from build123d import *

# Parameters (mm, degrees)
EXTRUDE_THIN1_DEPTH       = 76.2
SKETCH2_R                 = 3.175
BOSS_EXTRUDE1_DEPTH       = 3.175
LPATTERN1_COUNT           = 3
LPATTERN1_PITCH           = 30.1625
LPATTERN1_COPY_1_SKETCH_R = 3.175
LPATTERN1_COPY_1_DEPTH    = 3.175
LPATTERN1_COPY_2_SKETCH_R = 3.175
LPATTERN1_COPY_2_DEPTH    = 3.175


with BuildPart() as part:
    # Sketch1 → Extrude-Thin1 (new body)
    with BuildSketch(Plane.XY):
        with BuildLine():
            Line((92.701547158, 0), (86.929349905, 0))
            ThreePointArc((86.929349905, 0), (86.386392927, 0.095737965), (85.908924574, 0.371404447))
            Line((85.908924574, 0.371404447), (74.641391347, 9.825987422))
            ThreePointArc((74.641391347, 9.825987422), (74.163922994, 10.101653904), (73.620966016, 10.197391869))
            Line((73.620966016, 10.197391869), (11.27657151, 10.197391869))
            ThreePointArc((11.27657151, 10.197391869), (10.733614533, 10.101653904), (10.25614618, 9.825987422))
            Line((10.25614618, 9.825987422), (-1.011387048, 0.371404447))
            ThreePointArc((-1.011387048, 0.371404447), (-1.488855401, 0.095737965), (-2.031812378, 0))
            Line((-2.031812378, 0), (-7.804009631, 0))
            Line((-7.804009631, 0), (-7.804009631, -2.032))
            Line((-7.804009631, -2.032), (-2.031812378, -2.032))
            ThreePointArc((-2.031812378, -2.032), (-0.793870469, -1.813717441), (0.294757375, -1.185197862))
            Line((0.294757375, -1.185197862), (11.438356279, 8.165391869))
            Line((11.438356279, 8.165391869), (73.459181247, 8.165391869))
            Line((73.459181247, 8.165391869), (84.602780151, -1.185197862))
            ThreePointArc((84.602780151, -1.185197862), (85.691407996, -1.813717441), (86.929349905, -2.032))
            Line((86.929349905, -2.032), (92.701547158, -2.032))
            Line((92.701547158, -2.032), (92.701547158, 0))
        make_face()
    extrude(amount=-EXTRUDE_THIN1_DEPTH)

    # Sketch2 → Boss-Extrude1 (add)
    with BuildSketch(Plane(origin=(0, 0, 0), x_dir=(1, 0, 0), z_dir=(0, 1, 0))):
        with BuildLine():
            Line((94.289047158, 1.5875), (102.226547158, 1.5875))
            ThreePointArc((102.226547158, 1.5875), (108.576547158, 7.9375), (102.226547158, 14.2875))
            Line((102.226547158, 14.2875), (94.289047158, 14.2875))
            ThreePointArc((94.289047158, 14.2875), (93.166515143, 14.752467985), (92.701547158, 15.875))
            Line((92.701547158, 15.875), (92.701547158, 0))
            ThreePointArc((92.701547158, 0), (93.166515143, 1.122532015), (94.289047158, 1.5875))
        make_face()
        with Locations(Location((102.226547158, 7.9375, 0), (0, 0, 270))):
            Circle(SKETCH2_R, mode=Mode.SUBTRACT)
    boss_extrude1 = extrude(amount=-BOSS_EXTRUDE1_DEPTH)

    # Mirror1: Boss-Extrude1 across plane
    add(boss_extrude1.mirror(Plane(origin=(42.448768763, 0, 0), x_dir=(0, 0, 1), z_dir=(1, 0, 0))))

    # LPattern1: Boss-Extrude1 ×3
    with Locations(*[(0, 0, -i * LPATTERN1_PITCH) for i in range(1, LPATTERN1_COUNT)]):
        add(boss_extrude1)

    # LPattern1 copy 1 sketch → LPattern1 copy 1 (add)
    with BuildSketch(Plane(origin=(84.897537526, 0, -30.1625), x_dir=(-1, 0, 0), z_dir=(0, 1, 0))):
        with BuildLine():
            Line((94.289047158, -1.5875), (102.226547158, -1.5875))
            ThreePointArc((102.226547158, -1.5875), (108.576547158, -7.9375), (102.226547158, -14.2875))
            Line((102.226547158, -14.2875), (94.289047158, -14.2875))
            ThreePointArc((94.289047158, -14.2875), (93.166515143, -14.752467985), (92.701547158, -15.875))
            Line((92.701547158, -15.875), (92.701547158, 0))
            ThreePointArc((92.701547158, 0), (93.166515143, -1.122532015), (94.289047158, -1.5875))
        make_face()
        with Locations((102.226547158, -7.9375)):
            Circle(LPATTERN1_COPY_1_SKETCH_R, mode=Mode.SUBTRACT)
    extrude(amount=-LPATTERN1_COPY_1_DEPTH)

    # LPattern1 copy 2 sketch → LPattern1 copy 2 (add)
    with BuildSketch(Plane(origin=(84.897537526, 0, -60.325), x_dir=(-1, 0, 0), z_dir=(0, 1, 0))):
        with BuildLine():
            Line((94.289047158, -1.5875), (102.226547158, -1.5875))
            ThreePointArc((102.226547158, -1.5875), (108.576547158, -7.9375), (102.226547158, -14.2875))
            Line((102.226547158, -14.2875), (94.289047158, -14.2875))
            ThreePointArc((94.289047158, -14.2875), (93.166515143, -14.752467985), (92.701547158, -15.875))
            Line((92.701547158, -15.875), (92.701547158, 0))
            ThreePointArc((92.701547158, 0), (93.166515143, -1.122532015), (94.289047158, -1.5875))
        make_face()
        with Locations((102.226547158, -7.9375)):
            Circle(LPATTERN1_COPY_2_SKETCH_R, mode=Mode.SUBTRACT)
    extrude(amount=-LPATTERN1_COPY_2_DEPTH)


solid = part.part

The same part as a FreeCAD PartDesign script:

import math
import FreeCAD as App
import Part
import Sketcher
from FreeCAD import Vector
Q = App.Units.Quantity

doc = App.newDocument("Part")
params = doc.addObject("Spreadsheet::Sheet", "Params")
for row, (alias, value) in enumerate([
    ("sketch1_radius", "0.0625 in"),
    ("sketch1_height", "0.08 in"),
    ("pad1_length", "3 in"),
    ("sketch2_diameter", "0.25 in"),
    ("sketch2_radius", "0.25 in"),
    ("sketch2_radius2", "0.0625 in"),
    ("sketch2_width", "0.3125 in"),
    ("pad2_length", "0.125 in"),
    ("linearpattern_pitch", "1.1875 in"),
    ("sketch3_diameter", "0.25 in"),
    ("sketch3_radius", "0.25 in"),
    ("sketch3_radius2", "0.0625 in"),
    ("sketch3_width", "0.3125 in"),
    ("pad3_length", "0.125 in"),
    ("sketch4_diameter", "0.25 in"),
    ("sketch4_radius", "0.25 in"),
    ("sketch4_radius2", "0.0625 in"),
    ("sketch4_width", "0.3125 in"),
    ("pad4_length", "0.125 in"),
], start=1):
    params.set(f"A{row}", alias)
    params.set(f"B{row}", "=" + value)
    params.setAlias(f"B{row}", alias)

body = doc.addObject("PartDesign::Body", "Body")

sketch1 = doc.addObject("Sketcher::SketchObject", "Sketch")
body.addObject(sketch1)
sketch1.AttachmentSupport = (doc.XY_Plane, [""])
sketch1.MapMode = "FlatFace"
sketch1.addGeometry([
    Part.LineSegment(Vector(92.701547, 0, 0), Vector(86.92935, 0, 0)),
    Part.ArcOfCircle(Part.Circle(Vector(86.92935, 1.5875, 0), Vector(0, 0, 1), 1.5875), math.radians(-130), math.radians(-90)),
    Part.LineSegment(Vector(85.908925, 0.371404, 0), Vector(74.641391, 9.825987, 0)),
    Part.ArcOfCircle(Part.Circle(Vector(73.620966, 8.609892, 0), Vector(0, 0, 1), 1.5875), math.radians(50), math.radians(90)),
    Part.LineSegment(Vector(73.620966, 10.197392, 0), Vector(11.276572, 10.197392, 0)),
    Part.ArcOfCircle(Part.Circle(Vector(11.276572, 8.609892, 0), Vector(0, 0, 1), 1.5875), math.radians(90), math.radians(130)),
    Part.LineSegment(Vector(10.256146, 9.825987, 0), Vector(-1.011387, 0.371404, 0)),
    Part.ArcOfCircle(Part.Circle(Vector(-2.031812, 1.5875, 0), Vector(0, 0, 1), 1.5875), math.radians(-90), math.radians(-50)),
    Part.LineSegment(Vector(-2.031812, 0, 0), Vector(-7.80401, 0, 0)),
    Part.LineSegment(Vector(-7.80401, 0, 0), Vector(-7.80401, -2.032, 0)),
    Part.LineSegment(Vector(-7.80401, -2.032, 0), Vector(-2.031812, -2.032, 0)),
    Part.ArcOfCircle(Part.Circle(Vector(-2.031812, 1.5875, 0), Vector(0, 0, 1), 3.6195), math.radians(-90), math.radians(-50)),
    Part.LineSegment(Vector(0.294757, -1.185198, 0), Vector(11.438356, 8.165392, 0)),
    Part.LineSegment(Vector(11.438356, 8.165392, 0), Vector(73.459181, 8.165392, 0)),
    Part.LineSegment(Vector(73.459181, 8.165392, 0), Vector(84.60278, -1.185198, 0)),
    Part.ArcOfCircle(Part.Circle(Vector(86.92935, 1.5875, 0), Vector(0, 0, 1), 3.6195), math.radians(-130), math.radians(-90)),
    Part.LineSegment(Vector(86.92935, -2.032, 0), Vector(92.701547, -2.032, 0)),
    Part.LineSegment(Vector(92.701547, -2.032, 0), Vector(92.701547, 0, 0)),
], False)
sketch1.addConstraint([
    Sketcher.Constraint("Tangent", 0, 2, 1, 2),
    Sketcher.Constraint("Tangent", 1, 1, 2, 1),
    Sketcher.Constraint("Tangent", 2, 2, 3, 1),
    Sketcher.Constraint("Tangent", 3, 2, 4, 1),
    Sketcher.Constraint("Tangent", 4, 2, 5, 1),
    Sketcher.Constraint("Tangent", 5, 2, 6, 1),
    Sketcher.Constraint("Tangent", 6, 2, 7, 2),
    Sketcher.Constraint("Tangent", 7, 1, 8, 1),
    Sketcher.Constraint("Coincident", 8, 2, 9, 1),
    Sketcher.Constraint("Coincident", 9, 2, 10, 1),
    Sketcher.Constraint("Tangent", 10, 2, 11, 1),
    Sketcher.Constraint("Tangent", 11, 2, 12, 1),
    Sketcher.Constraint("Coincident", 12, 2, 13, 1),
    Sketcher.Constraint("Coincident", 13, 2, 14, 1),
    Sketcher.Constraint("Tangent", 14, 2, 15, 1),
    Sketcher.Constraint("Tangent", 15, 2, 16, 1),
    Sketcher.Constraint("Coincident", 16, 2, 17, 1),
    Sketcher.Constraint("Coincident", 17, 2, 0, 1),
    Sketcher.Constraint("Horizontal", 0),
    Sketcher.Constraint("Horizontal", 4),
    Sketcher.Constraint("Horizontal", 8),
    Sketcher.Constraint("Vertical", 9),
    Sketcher.Constraint("Horizontal", 10),
    Sketcher.Constraint("Horizontal", 13),
    Sketcher.Constraint("Horizontal", 16),
    Sketcher.Constraint("Vertical", 17),
    Sketcher.Constraint("Coincident", 11, 3, 7, 3),
    Sketcher.Constraint("Coincident", 15, 3, 1, 3),
    Sketcher.Constraint("Equal", 1, 3),
    Sketcher.Constraint("Equal", 3, 5),
    Sketcher.Constraint("Equal", 5, 7),
    Sketcher.Constraint("Equal", 11, 15),
    Sketcher.Constraint("PointOnObject", 0, 2, -1),
    Sketcher.Constraint("PointOnObject", 7, 1, -1),
    Sketcher.Constraint("Parallel", 6, 12),
    Sketcher.Constraint("Parallel", 2, 14),
    Sketcher.Constraint("Horizontal", 2, 2, 5, 2),
    Sketcher.Constraint("Equal", 0, 8),
    Sketcher.Constraint("Angle", 2, Q("140 deg")),
    Sketcher.Constraint("Radius", 1, Q("0.0625 in")),
    Sketcher.Constraint("DistanceY", 9, 2, 9, 1, Q("0.08 in")),
    Sketcher.Constraint("DistanceY", 12, 2, 4, 2, Q("0.08 in")),
    Sketcher.Constraint("DistanceX", 11, 2, 12, 2, Q("11.143599 mm")),
    Sketcher.Constraint("DistanceX", 0, 2, 0, 1, Q("5.772197 mm")),
    Sketcher.Constraint("DistanceX", 4, 2, 4, 1, Q("62.344395 mm")),
    Sketcher.Constraint("DistanceX", -1, 1, 1, 3, Q("86.92935 mm")),
])
sketch1.setExpression("Constraints[39]", "Params.sketch1_radius")
sketch1.setExpression("Constraints[40]", "Params.sketch1_height")
pad1 = doc.addObject("PartDesign::Pad", "Pad")
body.addObject(pad1)
pad1.Profile = sketch1
pad1.setExpression("Length", "Params.pad1_length")
pad1.Reversed = True

sketch2 = doc.addObject("Sketcher::SketchObject", "Sketch001")
body.addObject(sketch2)
sketch2.AttachmentSupport = (doc.XZ_Plane, [""])
sketch2.MapMode = "FlatFace"
sketch2.addGeometry([
    Part.LineSegment(Vector(94.289047, -1.5875, 0), Vector(102.226547, -1.5875, 0)),
    Part.ArcOfCircle(Part.Circle(Vector(102.226547, -7.9375, 0), Vector(0, 0, 1), 6.35), math.radians(-90), math.radians(90)),
    Part.LineSegment(Vector(102.226547, -14.2875, 0), Vector(94.289047, -14.2875, 0)),
    Part.ArcOfCircle(Part.Circle(Vector(94.289047, -15.875, 0), Vector(0, 0, 1), 1.5875), math.radians(90), math.radians(180)),
    Part.LineSegment(Vector(92.701547, -15.875, 0), Vector(92.701547, 0, 0)),
    Part.ArcOfCircle(Part.Circle(Vector(94.289047, 0, 0), Vector(0, 0, 1), 1.5875), math.radians(180), math.radians(270)),
    Part.Circle(Vector(102.226547, -7.9375, 0), Vector(0, 0, 1), 3.175),
], False)
sketch2.addConstraint([
    Sketcher.Constraint("Tangent", 0, 2, 1, 2),
    Sketcher.Constraint("Tangent", 1, 1, 2, 1),
    Sketcher.Constraint("Tangent", 2, 2, 3, 1),
    Sketcher.Constraint("Tangent", 3, 2, 4, 1),
    Sketcher.Constraint("Tangent", 4, 2, 5, 1),
    Sketcher.Constraint("Tangent", 5, 2, 0, 1),
    Sketcher.Constraint("Horizontal", 0),
    Sketcher.Constraint("Horizontal", 2),
    Sketcher.Constraint("Vertical", 4),
    Sketcher.Constraint("Coincident", 6, 3, 1, 3),
    Sketcher.Constraint("Equal", 3, 5),
    Sketcher.Constraint("PointOnObject", 5, 3, -1),
    Sketcher.Constraint("Diameter", 6, Q("0.25 in")),
    Sketcher.Constraint("Radius", 1, Q("0.25 in")),
    Sketcher.Constraint("Radius", 3, Q("0.0625 in")),
    Sketcher.Constraint("DistanceX", 0, 1, 0, 2, Q("0.3125 in")),
    Sketcher.Constraint("DistanceX", -1, 1, 1, 3, Q("102.226547 mm")),
])
sketch2.setExpression("Constraints[12]", "Params.sketch2_diameter")
sketch2.setExpression("Constraints[13]", "Params.sketch2_radius")
sketch2.setExpression("Constraints[14]", "Params.sketch2_radius2")
sketch2.setExpression("Constraints[15]", "Params.sketch2_width")
pad2 = doc.addObject("PartDesign::Pad", "Pad001")
body.addObject(pad2)
pad2.Profile = sketch2
pad2.setExpression("Length", "Params.pad2_length")
doc.recompute()

datumplane = doc.addObject("PartDesign::Plane", "DatumPlane")
body.addObject(datumplane)
datumplane.AttachmentSupport = (doc.YZ_Plane, [""])
datumplane.MapMode = "FlatFace"
datumplane.AttachmentOffset = App.Placement(Vector(0, 0, 42.448769), App.Rotation())
mirrored = doc.addObject("PartDesign::Mirrored", "Mirrored")
body.addObject(mirrored)
mirrored.Originals = [pad2]
mirrored.MirrorPlane = (datumplane, [""])
body.Tip = mirrored
doc.recompute()

linearpattern = doc.addObject("PartDesign::LinearPattern", "LinearPattern")
body.addObject(linearpattern)
linearpattern.Originals = [pad2]
linearpattern.Direction = (doc.Z_Axis, [""])
linearpattern.Mode = "offset"
linearpattern.setExpression("Offset", "Params.linearpattern_pitch")
linearpattern.Occurrences = 3
linearpattern.Reversed = True
body.Tip = linearpattern

sketch3 = doc.addObject("Sketcher::SketchObject", "Sketch002")
body.addObject(sketch3)
sketch3.AttachmentSupport = (doc.XZ_Plane, [""])
sketch3.MapMode = "FlatFace"
sketch3.addGeometry([
    Part.LineSegment(Vector(-17.32901, -31.75, 0), Vector(-9.39151, -31.75, 0)),
    Part.ArcOfCircle(Part.Circle(Vector(-9.39151, -30.1625, 0), Vector(0, 0, 1), 1.5875), math.radians(-90), math.radians(0)),
    Part.LineSegment(Vector(-7.80401, -30.1625, 0), Vector(-7.80401, -46.0375, 0)),
    Part.ArcOfCircle(Part.Circle(Vector(-9.39151, -46.0375, 0), Vector(0, 0, 1), 1.5875), math.radians(0), math.radians(90)),
    Part.LineSegment(Vector(-9.39151, -44.45, 0), Vector(-17.32901, -44.45, 0)),
    Part.ArcOfCircle(Part.Circle(Vector(-17.32901, -38.1, 0), Vector(0, 0, 1), 6.35), math.radians(90), math.radians(270)),
    Part.Circle(Vector(-17.32901, -38.1, 0), Vector(0, 0, 1), 3.175),
], False)
sketch3.addConstraint([
    Sketcher.Constraint("Tangent", 0, 2, 1, 1),
    Sketcher.Constraint("Tangent", 1, 2, 2, 1),
    Sketcher.Constraint("Tangent", 2, 2, 3, 1),
    Sketcher.Constraint("Tangent", 3, 2, 4, 1),
    Sketcher.Constraint("Tangent", 4, 2, 5, 2),
    Sketcher.Constraint("Tangent", 5, 1, 0, 1),
    Sketcher.Constraint("Horizontal", 0),
    Sketcher.Constraint("Vertical", 2),
    Sketcher.Constraint("Horizontal", 4),
    Sketcher.Constraint("Coincident", 6, 3, 5, 3),
    Sketcher.Constraint("Equal", 1, 3),
    Sketcher.Constraint("Diameter", 6, Q("0.25 in")),
    Sketcher.Constraint("Radius", 5, Q("0.25 in")),
    Sketcher.Constraint("Radius", 1, Q("0.0625 in")),
    Sketcher.Constraint("DistanceY", 5, 3, -1, 1, Q("1.5 in")),
    Sketcher.Constraint("DistanceX", 0, 1, 0, 2, Q("0.3125 in")),
    Sketcher.Constraint("DistanceX", 1, 3, -1, 1, Q("9.39151 mm")),
])
sketch3.setExpression("Constraints[11]", "Params.sketch3_diameter")
sketch3.setExpression("Constraints[12]", "Params.sketch3_radius")
sketch3.setExpression("Constraints[13]", "Params.sketch3_radius2")
sketch3.setExpression("Constraints[15]", "Params.sketch3_width")
pad3 = doc.addObject("PartDesign::Pad", "Pad002")
body.addObject(pad3)
pad3.Profile = sketch3
pad3.setExpression("Length", "Params.pad3_length")

sketch4 = doc.addObject("Sketcher::SketchObject", "Sketch003")
body.addObject(sketch4)
sketch4.AttachmentSupport = (doc.XZ_Plane, [""])
sketch4.MapMode = "FlatFace"
sketch4.addGeometry([
    Part.LineSegment(Vector(-17.32901, -61.9125, 0), Vector(-9.39151, -61.9125, 0)),
    Part.ArcOfCircle(Part.Circle(Vector(-9.39151, -60.325, 0), Vector(0, 0, 1), 1.5875), math.radians(-90), math.radians(0)),
    Part.LineSegment(Vector(-7.80401, -60.325, 0), Vector(-7.80401, -76.2, 0)),
    Part.ArcOfCircle(Part.Circle(Vector(-9.39151, -76.2, 0), Vector(0, 0, 1), 1.5875), math.radians(0), math.radians(90)),
    Part.LineSegment(Vector(-9.39151, -74.6125, 0), Vector(-17.32901, -74.6125, 0)),
    Part.ArcOfCircle(Part.Circle(Vector(-17.32901, -68.2625, 0), Vector(0, 0, 1), 6.35), math.radians(90), math.radians(270)),
    Part.Circle(Vector(-17.32901, -68.2625, 0), Vector(0, 0, 1), 3.175),
], False)
sketch4.addConstraint([
    Sketcher.Constraint("Tangent", 0, 2, 1, 1),
    Sketcher.Constraint("Tangent", 1, 2, 2, 1),
    Sketcher.Constraint("Tangent", 2, 2, 3, 1),
    Sketcher.Constraint("Tangent", 3, 2, 4, 1),
    Sketcher.Constraint("Tangent", 4, 2, 5, 2),
    Sketcher.Constraint("Tangent", 5, 1, 0, 1),
    Sketcher.Constraint("Horizontal", 0),
    Sketcher.Constraint("Vertical", 2),
    Sketcher.Constraint("Horizontal", 4),
    Sketcher.Constraint("Coincident", 6, 3, 5, 3),
    Sketcher.Constraint("Equal", 1, 3),
    Sketcher.Constraint("Diameter", 6, Q("0.25 in")),
    Sketcher.Constraint("Radius", 5, Q("0.25 in")),
    Sketcher.Constraint("DistanceY", 3, 3, -1, 1, Q("3 in")),
    Sketcher.Constraint("Radius", 1, Q("0.0625 in")),
    Sketcher.Constraint("DistanceX", 0, 1, 0, 2, Q("0.3125 in")),
    Sketcher.Constraint("DistanceX", 1, 3, -1, 1, Q("9.39151 mm")),
])
sketch4.setExpression("Constraints[11]", "Params.sketch4_diameter")
sketch4.setExpression("Constraints[12]", "Params.sketch4_radius")
sketch4.setExpression("Constraints[14]", "Params.sketch4_radius2")
sketch4.setExpression("Constraints[15]", "Params.sketch4_width")
pad4 = doc.addObject("PartDesign::Pad", "Pad003")
body.addObject(pad4)
pad4.Profile = sketch4
pad4.setExpression("Length", "Params.pad4_length")

doc.recompute()
